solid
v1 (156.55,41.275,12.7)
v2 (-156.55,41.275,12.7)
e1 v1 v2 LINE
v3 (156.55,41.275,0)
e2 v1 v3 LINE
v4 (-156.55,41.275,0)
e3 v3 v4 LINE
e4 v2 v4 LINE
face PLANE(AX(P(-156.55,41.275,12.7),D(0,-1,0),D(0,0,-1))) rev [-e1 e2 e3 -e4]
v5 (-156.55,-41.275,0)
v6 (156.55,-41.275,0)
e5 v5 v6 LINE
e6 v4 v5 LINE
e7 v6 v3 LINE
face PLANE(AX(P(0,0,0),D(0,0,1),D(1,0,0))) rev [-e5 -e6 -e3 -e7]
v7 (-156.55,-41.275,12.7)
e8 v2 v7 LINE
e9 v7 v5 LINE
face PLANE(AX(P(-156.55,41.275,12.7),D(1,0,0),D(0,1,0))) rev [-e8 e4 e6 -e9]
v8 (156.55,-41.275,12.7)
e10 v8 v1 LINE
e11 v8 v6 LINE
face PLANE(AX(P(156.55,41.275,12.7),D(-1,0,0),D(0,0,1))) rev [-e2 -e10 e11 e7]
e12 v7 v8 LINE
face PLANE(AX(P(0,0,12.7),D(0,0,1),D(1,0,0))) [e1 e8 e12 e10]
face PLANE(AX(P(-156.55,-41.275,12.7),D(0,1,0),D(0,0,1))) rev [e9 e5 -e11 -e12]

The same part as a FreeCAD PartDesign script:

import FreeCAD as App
import Part
import Sketcher
from FreeCAD import Vector
Q = App.Units.Quantity


def add_polygon(sketch, points):
    """Adds a closed chain of lines whose ends are joined by coincident constraints."""
    first, n = sketch.GeometryCount, len(points)
    for a, b in zip(points, points[1:] + points[:1]):
        sketch.addGeometry(Part.LineSegment(App.Vector(*a, 0), App.Vector(*b, 0)), False)
    for i in range(n):
        sketch.addConstraint(Sketcher.Constraint("Coincident", first + i, 2, first + (i + 1) % n, 1))

doc = App.newDocument("Part")
body = doc.addObject("PartDesign::Body", "Body")

# Sketch on XY plane
sketch1 = doc.addObject("Sketcher::SketchObject", "Sketch")
body.addObject(sketch1)
sketch1.AttachmentSupport = (doc.XY_Plane, [""])
sketch1.MapMode = "FlatFace"
add_polygon(sketch1, [(-156.55, 41.275), (-156.55, -41.275), (156.55, -41.275), (156.55, 41.275)])  # lines 0-3
sketch1.addConstraint([
    Sketcher.Constraint("Vertical", 0),
    Sketcher.Constraint("Horizontal", 1),
    Sketcher.Constraint("Vertical", 2),
    Sketcher.Constraint("Horizontal", 3),
    Sketcher.Constraint("Symmetric", 0, 2, 2, 2, -1, 1),
    Sketcher.Constraint("DistanceY", 0, 2, 0, 1, Q("3.25 in")),
    Sketcher.Constraint("DistanceX", 1, 1, 1, 2, 313.1),
])
pad1 = doc.addObject("PartDesign::Pad", "Pad")
body.addObject(pad1)
pad1.Profile = sketch1
pad1.Length = Q("0.5 in")

doc.recompute()
